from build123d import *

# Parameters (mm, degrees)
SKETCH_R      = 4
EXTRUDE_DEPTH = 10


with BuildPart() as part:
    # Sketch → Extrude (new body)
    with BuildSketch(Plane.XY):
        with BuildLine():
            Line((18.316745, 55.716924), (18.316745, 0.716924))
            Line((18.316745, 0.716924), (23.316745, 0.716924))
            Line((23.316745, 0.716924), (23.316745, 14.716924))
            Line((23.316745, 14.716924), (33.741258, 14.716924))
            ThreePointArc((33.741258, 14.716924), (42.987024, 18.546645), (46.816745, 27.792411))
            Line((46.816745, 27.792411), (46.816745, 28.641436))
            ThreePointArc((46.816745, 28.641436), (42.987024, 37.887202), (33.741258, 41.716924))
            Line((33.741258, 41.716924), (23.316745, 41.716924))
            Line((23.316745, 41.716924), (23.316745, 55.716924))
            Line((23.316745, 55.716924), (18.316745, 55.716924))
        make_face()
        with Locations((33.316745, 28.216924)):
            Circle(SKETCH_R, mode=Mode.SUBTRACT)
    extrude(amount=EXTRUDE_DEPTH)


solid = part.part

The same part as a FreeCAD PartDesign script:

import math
import FreeCAD as App
import Part
import Sketcher
Q = App.Units.Quantity

doc = App.newDocument("Part")
params = doc.addObject("Spreadsheet::Sheet", "Params")
for row, (alias, value) in enumerate([
    ("sketch1_diameter", "8 mm"),
    ("sketch1_width", "5 mm"),
    ("sketch1_height", "55 mm"),
    ("sketch1_height2", "14 mm"),
    ("pad1_length", "10 mm"),
], start=1):
    params.set(f"A{row}", alias)
    params.set(f"B{row}", "=" + value)
    params.setAlias(f"B{row}", alias)

body = doc.addObject("PartDesign::Body", "Body")

# Sketch on XY plane
sketch1 = doc.addObject("Sketcher::SketchObject", "Sketch")
body.addObject(sketch1)
sketch1.AttachmentSupport = (doc.XY_Plane, [""])
sketch1.MapMode = "FlatFace"
sketch1.addGeometry(Part.LineSegment(App.Vector(18.316745, 55.716924, 0), App.Vector(18.316745, 0.716924, 0)), False)
sketch1.addGeometry(Part.LineSegment(App.Vector(18.316745, 0.716924, 0), App.Vector(23.316745, 0.716924, 0)), False)
sketch1.addGeometry(Part.LineSegment(App.Vector(23.316745, 0.716924, 0), App.Vector(23.316745, 14.716924, 0)), False)
sketch1.addGeometry(Part.LineSegment(App.Vector(23.316745, 14.716924, 0), App.Vector(33.741258, 14.716924, 0)), False)
sketch1.addGeometry(Part.ArcOfCircle(Part.Circle(App.Vector(33.74126, 27.792409, 0), App.Vector(0, 0, 1), 13.075485), math.radians(-90.000007), math.radians(0.000007)), False)
sketch1.addGeometry(Part.LineSegment(App.Vector(46.816745, 27.792411, 0), App.Vector(46.816745, 28.641436, 0)), False)
sketch1.addGeometry(Part.ArcOfCircle(Part.Circle(App.Vector(33.741258, 28.641437, 0), App.Vector(0, 0, 1), 13.075487), math.radians(-0.000004), math.radians(90)), False)
sketch1.addGeometry(Part.LineSegment(App.Vector(33.741258, 41.716924, 0), App.Vector(23.316745, 41.716924, 0)), False)
sketch1.addGeometry(Part.LineSegment(App.Vector(23.316745, 41.716924, 0), App.Vector(23.316745, 55.716924, 0)), False)
sketch1.addGeometry(Part.LineSegment(App.Vector(23.316745, 55.716924, 0), App.Vector(18.316745, 55.716924, 0)), False)
sketch1.addGeometry(Part.Circle(App.Vector(33.316745, 28.216924, 0), App.Vector(0, 0, 1), 4), False)
sketch1.addConstraint(Sketcher.Constraint("Coincident", 0, 2, 1, 1))
sketch1.addConstraint(Sketcher.Constraint("Coincident", 1, 2, 2, 1))
sketch1.addConstraint(Sketcher.Constraint("Coincident", 2, 2, 3, 1))
sketch1.addConstraint(Sketcher.Constraint("Tangent", 3, 2, 4, 1))
sketch1.addConstraint(Sketcher.Constraint("Tangent", 4, 2, 5, 1))
sketch1.addConstraint(Sketcher.Constraint("Tangent", 5, 2, 6, 1))
sketch1.addConstraint(Sketcher.Constraint("Tangent", 6, 2, 7, 1))
sketch1.addConstraint(Sketcher.Constraint("Coincident", 7, 2, 8, 1))
sketch1.addConstraint(Sketcher.Constraint("Coincident", 8, 2, 9, 1))
sketch1.addConstraint(Sketcher.Constraint("Coincident", 9, 2, 0, 1))
sketch1.addConstraint(Sketcher.Constraint("Vertical", 0))
sketch1.addConstraint(Sketcher.Constraint("Horizontal", 1))
sketch1.addConstraint(Sketcher.Constraint("Vertical", 2))
sketch1.addConstraint(Sketcher.Constraint("Horizontal", 3))
sketch1.addConstraint(Sketcher.Constraint("Vertical", 5))
sketch1.addConstraint(Sketcher.Constraint("Horizontal", 7))
sketch1.addConstraint(Sketcher.Constraint("Vertical", 8))
sketch1.addConstraint(Sketcher.Constraint("Horizontal", 9))
sketch1.addConstraint(Sketcher.Constraint("Equal", 4, 6))
sketch1.addConstraint(Sketcher.Constraint("Vertical", 2, 2, 7, 2))
sketch1.addConstraint(Sketcher.Constraint("Equal", 2, 8))
sketch1.addConstraint(Sketcher.Constraint("Diameter", 10, Q("8 mm")))
sketch1.addConstraint(Sketcher.Constraint("DistanceX", 1, 1, 1, 2, Q("5 mm")))
sketch1.addConstraint(Sketcher.Constraint("DistanceY", 0, 2, 0, 1, Q("55 mm")))
sketch1.addConstraint(Sketcher.Constraint("DistanceY", 2, 1, 2, 2, Q("14 mm")))
sketch1.addConstraint(Sketcher.Constraint("DistanceX", 0, 2, 10, 3, Q("15 mm")))
sketch1.addConstraint(Sketcher.Constraint("DistanceY", 0, 2, 10, 3, Q("27.5 mm")))
sketch1.addConstraint(Sketcher.Constraint("DistanceX", 10, 3, 4, 2, Q("13.5 mm")))
sketch1.addConstraint(Sketcher.Constraint("Radius", 4, Q("13.075485 mm")))
sketch1.addConstraint(Sketcher.Constraint("DistanceX", -1, 1, 4, 3, Q("33.74126 mm")))
sketch1.addConstraint(Sketcher.Constraint("DistanceY", -1, 1, 4, 3, Q("27.792409 mm")))
sketch1.setExpression("Constraints[21]", "Params.sketch1_diameter")
sketch1.setExpression("Constraints[22]", "Params.sketch1_width")
sketch1.setExpression("Constraints[23]", "Params.sketch1_height")
sketch1.setExpression("Constraints[24]", "Params.sketch1_height2")
pad1 = doc.addObject("PartDesign::Pad", "Pad")
body.addObject(pad1)
pad1.Profile = sketch1
pad1.setExpression("Length", "Params.pad1_length")

doc.recompute()
